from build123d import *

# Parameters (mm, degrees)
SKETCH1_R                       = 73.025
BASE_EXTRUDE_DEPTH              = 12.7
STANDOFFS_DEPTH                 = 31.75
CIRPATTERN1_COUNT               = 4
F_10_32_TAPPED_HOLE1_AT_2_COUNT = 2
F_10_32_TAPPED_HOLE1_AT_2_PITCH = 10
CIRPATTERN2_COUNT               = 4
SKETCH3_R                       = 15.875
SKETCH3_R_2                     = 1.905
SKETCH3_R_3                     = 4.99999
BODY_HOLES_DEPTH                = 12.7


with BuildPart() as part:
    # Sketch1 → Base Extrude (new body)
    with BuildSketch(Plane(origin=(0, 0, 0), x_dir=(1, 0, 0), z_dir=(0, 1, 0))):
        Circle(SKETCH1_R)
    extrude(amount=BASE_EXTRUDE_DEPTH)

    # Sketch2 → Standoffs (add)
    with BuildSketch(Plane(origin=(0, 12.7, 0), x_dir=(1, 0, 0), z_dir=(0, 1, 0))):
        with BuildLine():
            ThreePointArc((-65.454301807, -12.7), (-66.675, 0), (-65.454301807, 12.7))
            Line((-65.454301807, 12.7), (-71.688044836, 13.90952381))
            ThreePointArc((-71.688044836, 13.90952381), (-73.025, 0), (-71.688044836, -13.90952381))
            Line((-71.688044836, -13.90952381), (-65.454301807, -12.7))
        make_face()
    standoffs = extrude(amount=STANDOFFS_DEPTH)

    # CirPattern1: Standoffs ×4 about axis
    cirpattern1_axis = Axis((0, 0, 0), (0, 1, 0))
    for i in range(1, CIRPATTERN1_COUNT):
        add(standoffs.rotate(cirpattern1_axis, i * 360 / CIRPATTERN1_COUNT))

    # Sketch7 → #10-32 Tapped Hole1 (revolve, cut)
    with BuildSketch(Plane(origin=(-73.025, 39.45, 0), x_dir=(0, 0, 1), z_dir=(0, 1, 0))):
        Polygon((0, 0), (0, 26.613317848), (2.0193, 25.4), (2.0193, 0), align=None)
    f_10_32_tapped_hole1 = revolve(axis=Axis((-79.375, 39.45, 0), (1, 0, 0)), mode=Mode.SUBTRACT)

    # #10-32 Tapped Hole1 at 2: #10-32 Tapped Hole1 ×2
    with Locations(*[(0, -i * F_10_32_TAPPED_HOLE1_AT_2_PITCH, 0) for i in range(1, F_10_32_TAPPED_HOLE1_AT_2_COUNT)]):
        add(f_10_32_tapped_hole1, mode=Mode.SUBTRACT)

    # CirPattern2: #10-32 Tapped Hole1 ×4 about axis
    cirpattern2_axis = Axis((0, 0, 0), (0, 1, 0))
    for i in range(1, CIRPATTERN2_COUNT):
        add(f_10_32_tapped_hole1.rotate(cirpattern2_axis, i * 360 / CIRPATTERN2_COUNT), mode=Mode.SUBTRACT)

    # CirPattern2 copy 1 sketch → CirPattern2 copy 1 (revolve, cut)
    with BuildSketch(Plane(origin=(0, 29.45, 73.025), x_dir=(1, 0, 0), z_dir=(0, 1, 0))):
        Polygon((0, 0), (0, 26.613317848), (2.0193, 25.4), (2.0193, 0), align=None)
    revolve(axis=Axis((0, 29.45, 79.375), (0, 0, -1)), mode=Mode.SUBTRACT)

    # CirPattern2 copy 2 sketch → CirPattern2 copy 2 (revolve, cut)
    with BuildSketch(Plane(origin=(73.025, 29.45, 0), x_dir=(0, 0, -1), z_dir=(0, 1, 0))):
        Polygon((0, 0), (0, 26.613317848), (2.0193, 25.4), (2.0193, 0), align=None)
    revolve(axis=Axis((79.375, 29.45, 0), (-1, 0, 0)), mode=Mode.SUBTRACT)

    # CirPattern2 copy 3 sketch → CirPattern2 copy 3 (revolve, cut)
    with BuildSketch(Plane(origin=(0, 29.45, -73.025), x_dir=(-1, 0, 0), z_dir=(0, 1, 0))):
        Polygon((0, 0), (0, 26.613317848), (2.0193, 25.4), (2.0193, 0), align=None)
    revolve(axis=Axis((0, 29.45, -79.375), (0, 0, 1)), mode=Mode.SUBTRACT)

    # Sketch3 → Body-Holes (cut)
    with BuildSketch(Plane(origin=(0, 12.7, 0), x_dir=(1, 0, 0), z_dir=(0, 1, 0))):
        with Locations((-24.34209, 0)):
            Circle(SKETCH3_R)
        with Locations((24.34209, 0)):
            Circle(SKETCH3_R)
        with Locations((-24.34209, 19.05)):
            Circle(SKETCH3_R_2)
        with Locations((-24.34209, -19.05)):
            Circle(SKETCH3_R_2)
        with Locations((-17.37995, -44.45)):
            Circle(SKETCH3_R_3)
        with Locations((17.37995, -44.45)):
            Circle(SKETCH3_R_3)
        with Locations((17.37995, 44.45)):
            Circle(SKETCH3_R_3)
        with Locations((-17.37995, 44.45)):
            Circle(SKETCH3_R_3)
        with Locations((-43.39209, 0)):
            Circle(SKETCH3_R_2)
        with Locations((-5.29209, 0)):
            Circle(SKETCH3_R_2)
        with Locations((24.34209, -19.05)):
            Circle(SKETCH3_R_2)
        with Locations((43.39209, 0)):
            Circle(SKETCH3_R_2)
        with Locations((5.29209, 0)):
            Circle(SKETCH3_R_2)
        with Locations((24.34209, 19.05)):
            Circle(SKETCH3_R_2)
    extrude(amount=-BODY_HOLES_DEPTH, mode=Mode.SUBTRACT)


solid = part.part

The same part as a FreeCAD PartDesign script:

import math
import FreeCAD as App
import Part
import Sketcher

V = App.Vector
Q = App.Units.Quantity


def add_polygon(sketch, points):
    """Adds a closed chain of lines whose ends are joined by coincident constraints."""
    first, n = sketch.GeometryCount, len(points)
    for a, b in zip(points, points[1:] + points[:1]):
        sketch.addGeometry(Part.LineSegment(App.Vector(*a, 0), App.Vector(*b, 0)), False)
    for i in range(n):
        sketch.addConstraint(Sketcher.Constraint("Coincident", first + i, 2, first + (i + 1) % n, 1))

doc = App.newDocument("Part")
body = doc.addObject("PartDesign::Body", "Body")

# Sketch on XZ plane
sketch1 = body.newObject("Sketcher::SketchObject", "Sketch")
sketch1.AttachmentSupport = (doc.getObject("XZ_Plane"), [""])
sketch1.MapMode = "FlatFace"
sketch1.addGeometry(Part.Circle(V(0, 0, 0), V(0, 0, 1), 73), False)
sketch1.addConstraint([
    Sketcher.Constraint("Coincident", 0, 3, -1, 1),
    Sketcher.Constraint("Diameter", 0, Q("5.75 in")),
])
pad1 = body.newObject("PartDesign::Pad", "Pad")
pad1.Profile = sketch1
pad1.Length = Q("0.5 in")
pad1.Reversed = True

# Sketch on XZ plane
sketch2 = body.newObject("Sketcher::SketchObject", "Sketch001")
sketch2.AttachmentSupport = (doc.getObject("XZ_Plane"), [""])
sketch2.MapMode = "FlatFace"
sketch2.AttachmentOffset = App.Placement(V(0, 0, -0.5 * 25.4), App.Rotation())
sketch2.addGeometry([
    Part.ArcOfCircle(Part.Circle(V(0, 0, 0), V(0, 0, 1), 67), math.radians(169), math.radians(191)),
    Part.LineSegment(V(-65, -13, 0), V(-72, -14, 0)),
    Part.ArcOfCircle(Part.Circle(V(0, 0, 0), V(0, 0, 1), 73), math.radians(169), math.radians(191)),
    Part.LineSegment(V(-72, 14, 0), V(-65, 13, 0)),
], False)
sketch2.addConstraint([
    Sketcher.Constraint("Coincident", 0, 2, 1, 1),
    Sketcher.Constraint("Coincident", 1, 2, 2, 2),
    Sketcher.Constraint("Coincident", 2, 1, 3, 1),
    Sketcher.Constraint("Coincident", 3, 2, 0, 1),
    Sketcher.Constraint("Coincident", 0, 3, -1, 1),
    Sketcher.Constraint("Coincident", 2, 3, -1, 1),
    Sketcher.Constraint("Vertical", 1, 2, 2, 1),
    Sketcher.Constraint("Vertical", 0, 2, 3, 2),
    Sketcher.Constraint("Radius", 0, Q("2.625 in")),
    Sketcher.Constraint("Radius", 2, Q("2.875 in")),
    Sketcher.Constraint("DistanceY", 0, 2, 3, 2, Q("1 in")),
    Sketcher.Constraint("DistanceX", 1, 2, -1, 1, Q("71.688045 mm")),
])
pad2 = body.newObject("PartDesign::Pad", "Pad001")
pad2.Profile = sketch2
pad2.Length = Q("1.25 in")
pad2.Reversed = True
doc.recompute()

polarpattern = body.newObject("PartDesign::PolarPattern", "PolarPattern")
polarpattern.Originals = [pad2]
polarpattern.Axis = (doc.getObject("Y_Axis"), [""])
polarpattern.Angle = 360
polarpattern.Occurrences = 4
body.Tip = polarpattern

# Sketch on XZ plane
sketch3 = body.newObject("Sketcher::SketchObject", "Sketch002")
sketch3.AttachmentSupport = (doc.getObject("XZ_Plane"), [""])
sketch3.MapMode = "FlatFace"
sketch3.AttachmentOffset = App.Placement(V(0, 0, -39.45), App.Rotation())
add_polygon(sketch3, [(-46.4, 0), (-73, 0), (-73, 2), (-47.6, 2)])  # lines 0-3
sketch3.addConstraint([
    Sketcher.Constraint("Horizontal", 0),
    Sketcher.Constraint("Vertical", 1),
    Sketcher.Constraint("Horizontal", 2),
    Sketcher.Constraint("PointOnObject", 0, 2, -1),
    Sketcher.Constraint("DistanceX", 2, 1, 2, 2, Q("1 in")),
    Sketcher.Constraint("Angle", 3, Q("-59 deg")),
    Sketcher.Constraint("DistanceY", 1, 1, 1, 2, Q("0.0795 in")),
    Sketcher.Constraint("DistanceX", 0, 2, -1, 1, Q("2.875 in")),
])
groove = body.newObject("PartDesign::Groove", "Groove")
groove.Profile = sketch3
groove.ReferenceAxis = (sketch3, ["H_Axis"])
groove.Angle = 360
doc.recompute()

linearpattern = body.newObject("PartDesign::LinearPattern", "LinearPattern")
linearpattern.Originals = [groove]
linearpattern.Direction = (doc.getObject("Y_Axis"), [""])
linearpattern.Mode = "offset"
linearpattern.Offset = 10
linearpattern.Occurrences = 2
linearpattern.Reversed = True
body.Tip = linearpattern
doc.recompute()

polarpattern2 = body.newObject("PartDesign::PolarPattern", "PolarPattern001")
polarpattern2.Originals = [groove]
polarpattern2.Axis = (doc.getObject("Y_Axis"), [""])
polarpattern2.Angle = 360
polarpattern2.Occurrences = 4
body.Tip = polarpattern2

# Sketch on XZ plane
sketch4 = body.newObject("Sketcher::SketchObject", "Sketch003")
sketch4.AttachmentSupport = (doc.getObject("XZ_Plane"), [""])
sketch4.MapMode = "FlatFace"
sketch4.AttachmentOffset = App.Placement(V(0, 0, -29.45), App.Rotation())
add_polygon(sketch4, [(0, 46.4), (0, 73), (2, 73), (2, 47.6)])  # lines 0-3
sketch4.addConstraint([
    Sketcher.Constraint("Vertical", 0),
    Sketcher.Constraint("Horizontal", 1),
    Sketcher.Constraint("Vertical", 2),
    Sketcher.Constraint("PointOnObject", 0, 2, -2),
    Sketcher.Constraint("DistanceY", 2, 2, 2, 1, Q("1 in")),
    Sketcher.Constraint("Angle", 3, Q("-149 deg")),
    Sketcher.Constraint("DistanceX", 1, 1, 1, 2, Q("0.0795 in")),
    Sketcher.Constraint("DistanceY", -1, 1, 0, 2, Q("2.875 in")),
])
groove2 = body.newObject("PartDesign::Groove", "Groove001")
groove2.Profile = sketch4
groove2.ReferenceAxis = (sketch4, ["V_Axis"])
groove2.Angle = 360

# Sketch on XZ plane
sketch5 = body.newObject("Sketcher::SketchObject", "Sketch004")
sketch5.AttachmentSupport = (doc.getObject("XZ_Plane"), [""])
sketch5.MapMode = "FlatFace"
sketch5.AttachmentOffset = App.Placement(V(0, 0, -29.45), App.Rotation())
add_polygon(sketch5, [(46.4, 0), (73, 0), (73, -2), (47.6, -2)])  # lines 0-3
sketch5.addConstraint([
    Sketcher.Constraint("Horizontal", 0),
    Sketcher.Constraint("Vertical", 1),
    Sketcher.Constraint("Horizontal", 2),
    Sketcher.Constraint("PointOnObject", 0, 2, -1),
    Sketcher.Constraint("DistanceX", 2, 2, 2, 1, Q("1 in")),
    Sketcher.Constraint("Angle", 3, Q("121 deg")),
    Sketcher.Constraint("DistanceY", 1, 2, 1, 1, Q("0.0795 in")),
    Sketcher.Constraint("DistanceX", -1, 1, 0, 2, Q("2.875 in")),
])
groove3 = body.newObject("PartDesign::Groove", "Groove002")
groove3.Profile = sketch5
groove3.ReferenceAxis = (sketch5, ["H_Axis"])
groove3.Angle = 360

# Sketch on XZ plane
sketch6 = body.newObject("Sketcher::SketchObject", "Sketch005")
sketch6.AttachmentSupport = (doc.getObject("XZ_Plane"), [""])
sketch6.MapMode = "FlatFace"
sketch6.AttachmentOffset = App.Placement(V(0, 0, -29.45), App.Rotation())
add_polygon(sketch6, [(0, -46.4), (0, -73), (-2, -73), (-2, -47.6)])  # lines 0-3
sketch6.addConstraint([
    Sketcher.Constraint("Vertical", 0),
    Sketcher.Constraint("Horizontal", 1),
    Sketcher.Constraint("Vertical", 2),
    Sketcher.Constraint("PointOnObject", 0, 2, -2),
    Sketcher.Constraint("DistanceY", 2, 1, 2, 2, Q("1 in")),
    Sketcher.Constraint("Angle", 3, Q("31 deg")),
    Sketcher.Constraint("DistanceX", 1, 2, 1, 1, Q("0.0795 in")),
    Sketcher.Constraint("DistanceY", 0, 2, -1, 1, Q("2.875 in")),
])
groove4 = body.newObject("PartDesign::Groove", "Groove003")
groove4.Profile = sketch6
groove4.ReferenceAxis = (sketch6, ["V_Axis"])
groove4.Angle = 360

# Sketch on XZ plane
sketch7 = body.newObject("Sketcher::SketchObject", "Sketch006")
sketch7.AttachmentSupport = (doc.getObject("XZ_Plane"), [""])
sketch7.MapMode = "FlatFace"
sketch7.AttachmentOffset = App.Placement(V(0, 0, -0.5 * 25.4), App.Rotation())
sketch7.addGeometry([
    Part.Circle(V(-24.3, 0, 0), V(0, 0, 1), 15.9),  # 0
    Part.Circle(V(24.3, 0, 0), V(0, 0, 1), 15.9),  # 1
    Part.Circle(V(-24.3, -19.1, 0), V(0, 0, 1), 1.9),  # 2
    Part.Circle(V(-24.3, 19.1, 0), V(0, 0, 1), 1.9),  # 3
    Part.Circle(V(-17.4, 44.5, 0), V(0, 0, 1), 5),  # 4
    Part.Circle(V(17.4, 44.5, 0), V(0, 0, 1), 5),  # 5
    Part.Circle(V(17.4, -44.5, 0), V(0, 0, 1), 5),  # 6
    Part.Circle(V(-17.4, -44.5, 0), V(0, 0, 1), 5),  # 7
    Part.Circle(V(-43.4, 0, 0), V(0, 0, 1), 1.9),  # 8
    Part.Circle(V(-5.3, 0, 0), V(0, 0, 1), 1.9),  # 9
    Part.Circle(V(24.3, 19.1, 0), V(0, 0, 1), 1.9),  # 10
    Part.Circle(V(43.4, 0, 0), V(0, 0, 1), 1.9),  # 11
    Part.Circle(V(5.3, 0, 0), V(0, 0, 1), 1.9),  # 12
    Part.Circle(V(24.3, -19.1, 0), V(0, 0, 1), 1.9),  # 13
], False)
sketch7.addConstraint([
    Sketcher.Constraint("Equal", 0, 1),
    Sketcher.Constraint("Equal", 2, 3),
    Sketcher.Constraint("Equal", 4, 5),
    Sketcher.Constraint("Equal", 5, 6),
    Sketcher.Constraint("Equal", 6, 7),
    Sketcher.Constraint("Equal", 3, 8),
    Sketcher.Constraint("Equal", 8, 9),
    Sketcher.Constraint("Equal", 9, 10),
    Sketcher.Constraint("Equal", 10, 11),
    Sketcher.Constraint("Equal", 11, 12),
    Sketcher.Constraint("Equal", 12, 13),
    Sketcher.Constraint("Symmetric", 0, 3, 1, 3, -1, 1),
    Sketcher.Constraint("Symmetric", 4, 3, 6, 3, -1, 1),
    Sketcher.Constraint("Symmetric", 5, 3, 7, 3, -1, 1),
    Sketcher.Constraint("Symmetric", 2, 3, 10, 3, -1, 1),
    Sketcher.Constraint("Symmetric", 8, 3, 11, 3, -1, 1),
    Sketcher.Constraint("Symmetric", 9, 3, 12, 3, -1, 1),
    Sketcher.Constraint("Symmetric", 3, 3, 13, 3, -1, 1),
    Sketcher.Constraint("Symmetric", 4, 3, 5, 3, -2),
    Sketcher.Constraint("Symmetric", 3, 3, 10, 3, -2),
    Sketcher.Constraint("PointOnObject", 0, 3, -1),
    Sketcher.Constraint("PointOnObject", 8, 3, -1),
    Sketcher.Constraint("PointOnObject", 9, 3, -1),
    Sketcher.Constraint("Vertical", 0, 3, 2, 3),
    Sketcher.Constraint("Diameter", 0, Q("1.25 in")),
    Sketcher.Constraint("Diameter", 2, Q("0.15 in")),
    Sketcher.Constraint("DistanceY", 3, 3, 4, 3, Q("1 in")),
    Sketcher.Constraint("Diameter", 4, Q("0.3937 in")),
    Sketcher.Constraint("DistanceY", 2, 3, 3, 3, Q("1.5 in")),
    Sketcher.Constraint("DistanceX", 8, 3, 9, 3, Q("1.5 in")),
    Sketcher.Constraint("DistanceX", 8, 3, 0, 3, Q("0.75 in")),
    Sketcher.Constraint("DistanceX", 0, 3, 1, 3, Q("1.9167 in")),
    Sketcher.Constraint("DistanceX", 3, 3, 4, 3, Q("0.2741 in")),
])
pocket1 = body.newObject("PartDesign::Pocket", "Pocket")
pocket1.Profile = sketch7
pocket1.Length = Q("0.5 in")
pocket1.Reversed = True

doc.recompute()
